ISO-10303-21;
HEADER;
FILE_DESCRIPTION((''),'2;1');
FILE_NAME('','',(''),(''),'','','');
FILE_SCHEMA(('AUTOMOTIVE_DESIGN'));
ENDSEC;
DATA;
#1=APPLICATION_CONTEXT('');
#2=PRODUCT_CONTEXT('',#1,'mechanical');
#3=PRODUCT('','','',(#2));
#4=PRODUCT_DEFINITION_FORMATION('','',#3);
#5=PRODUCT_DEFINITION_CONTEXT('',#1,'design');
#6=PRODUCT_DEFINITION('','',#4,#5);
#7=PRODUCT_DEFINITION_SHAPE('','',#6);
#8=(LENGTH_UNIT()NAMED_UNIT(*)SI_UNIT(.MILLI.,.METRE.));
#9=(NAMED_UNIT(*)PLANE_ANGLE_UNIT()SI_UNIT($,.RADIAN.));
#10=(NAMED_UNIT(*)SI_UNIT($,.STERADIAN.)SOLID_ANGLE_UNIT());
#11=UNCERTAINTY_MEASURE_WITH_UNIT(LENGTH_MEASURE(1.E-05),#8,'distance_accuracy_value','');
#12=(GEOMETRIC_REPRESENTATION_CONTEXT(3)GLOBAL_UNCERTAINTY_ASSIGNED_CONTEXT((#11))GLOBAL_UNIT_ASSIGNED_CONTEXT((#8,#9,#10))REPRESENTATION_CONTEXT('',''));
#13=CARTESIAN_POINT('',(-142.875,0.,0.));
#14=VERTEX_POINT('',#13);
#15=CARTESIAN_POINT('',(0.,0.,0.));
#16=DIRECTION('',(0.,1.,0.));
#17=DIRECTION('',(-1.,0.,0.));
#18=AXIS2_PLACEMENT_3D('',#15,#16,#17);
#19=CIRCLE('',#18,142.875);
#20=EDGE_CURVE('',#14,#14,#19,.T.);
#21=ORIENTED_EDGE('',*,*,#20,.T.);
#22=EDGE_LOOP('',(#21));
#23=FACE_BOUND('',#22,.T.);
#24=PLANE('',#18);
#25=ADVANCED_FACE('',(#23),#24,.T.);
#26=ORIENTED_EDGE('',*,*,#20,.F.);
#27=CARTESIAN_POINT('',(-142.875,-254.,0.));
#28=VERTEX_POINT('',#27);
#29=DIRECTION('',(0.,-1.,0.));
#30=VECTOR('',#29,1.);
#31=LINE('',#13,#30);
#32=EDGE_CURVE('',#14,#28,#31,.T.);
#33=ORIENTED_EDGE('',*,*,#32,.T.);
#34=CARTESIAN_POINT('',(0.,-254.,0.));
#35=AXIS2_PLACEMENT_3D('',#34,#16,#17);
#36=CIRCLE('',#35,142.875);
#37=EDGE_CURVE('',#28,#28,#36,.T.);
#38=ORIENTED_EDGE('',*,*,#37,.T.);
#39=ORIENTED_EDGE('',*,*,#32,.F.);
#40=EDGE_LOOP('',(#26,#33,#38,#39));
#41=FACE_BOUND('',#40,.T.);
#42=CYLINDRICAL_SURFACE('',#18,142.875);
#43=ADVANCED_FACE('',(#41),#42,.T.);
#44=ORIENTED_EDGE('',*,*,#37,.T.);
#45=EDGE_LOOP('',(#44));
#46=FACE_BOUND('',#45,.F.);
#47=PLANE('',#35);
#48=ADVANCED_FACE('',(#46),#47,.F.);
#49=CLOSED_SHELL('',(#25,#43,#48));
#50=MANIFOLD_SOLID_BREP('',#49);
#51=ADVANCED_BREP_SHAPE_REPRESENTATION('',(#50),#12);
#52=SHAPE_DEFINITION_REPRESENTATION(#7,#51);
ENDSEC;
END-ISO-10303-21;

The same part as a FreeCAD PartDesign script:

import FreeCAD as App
import Part
import Sketcher
from FreeCAD import Vector
Q = App.Units.Quantity

doc = App.newDocument("Part")
body = doc.addObject("PartDesign::Body", "Body")

sketch1 = doc.addObject("Sketcher::SketchObject", "Sketch")
body.addObject(sketch1)
sketch1.AttachmentSupport = (doc.XZ_Plane, [""])
sketch1.MapMode = "FlatFace"
sketch1.addGeometry(Part.Circle(Vector(0, 0, 0), Vector(0, 0, 1), 143), False)
sketch1.addConstraint([
    Sketcher.Constraint("Coincident", 0, 3, -1, 1),
    Sketcher.Constraint("Diameter", 0, Q("11.25 in")),
])
pad1 = doc.addObject("PartDesign::Pad", "Pad")
body.addObject(pad1)
pad1.Profile = sketch1
pad1.Length = Q("10 in")

doc.recompute()
